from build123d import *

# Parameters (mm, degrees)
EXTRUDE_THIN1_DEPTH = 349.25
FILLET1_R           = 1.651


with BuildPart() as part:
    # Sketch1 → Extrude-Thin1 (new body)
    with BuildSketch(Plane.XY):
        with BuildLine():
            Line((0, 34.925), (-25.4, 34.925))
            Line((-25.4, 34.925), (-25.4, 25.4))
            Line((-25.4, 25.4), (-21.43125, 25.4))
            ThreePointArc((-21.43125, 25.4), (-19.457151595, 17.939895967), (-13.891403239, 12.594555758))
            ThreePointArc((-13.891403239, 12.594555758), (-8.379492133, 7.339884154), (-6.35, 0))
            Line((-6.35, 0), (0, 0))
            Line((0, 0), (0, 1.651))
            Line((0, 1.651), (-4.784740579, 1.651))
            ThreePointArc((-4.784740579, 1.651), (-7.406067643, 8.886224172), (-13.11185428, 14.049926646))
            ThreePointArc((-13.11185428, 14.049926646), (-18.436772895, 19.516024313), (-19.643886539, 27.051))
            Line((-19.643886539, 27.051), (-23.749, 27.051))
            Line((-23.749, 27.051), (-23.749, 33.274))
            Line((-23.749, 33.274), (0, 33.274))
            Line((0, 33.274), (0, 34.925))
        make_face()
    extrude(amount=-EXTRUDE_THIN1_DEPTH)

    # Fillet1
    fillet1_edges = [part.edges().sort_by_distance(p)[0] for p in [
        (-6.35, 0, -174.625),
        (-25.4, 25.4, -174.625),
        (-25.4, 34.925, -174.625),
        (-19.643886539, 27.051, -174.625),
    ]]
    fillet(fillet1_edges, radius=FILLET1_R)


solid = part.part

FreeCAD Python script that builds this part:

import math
import FreeCAD as App
import Part
import Sketcher
Q = App.Units.Quantity


def edges_at(feature, points):
    """Names of the edges that pass closest to the given points."""
    edges = feature.Shape.Edges
    near = lambda p: min(range(len(edges)), key=lambda i: edges[i].distToShape(Part.Vertex(*p))[0])
    return sorted({f"Edge{near(p) + 1}" for p in points})

doc = App.newDocument("Part")
body = doc.addObject("PartDesign::Body", "Body")

sketch1 = body.newObject("Sketcher::SketchObject", "Sketch")
sketch1.AttachmentSupport = (doc.getObject("XY_Plane"), [""])
sketch1.MapMode = "FlatFace"
sketch1.addGeometry([
    Part.LineSegment(App.Vector(0, 34.9, 0), App.Vector(-25.4, 34.9, 0)),
    Part.LineSegment(App.Vector(-25.4, 34.9, 0), App.Vector(-25.4, 25.4, 0)),
    Part.LineSegment(App.Vector(-25.4, 25.4, 0), App.Vector(-21.4, 25.4, 0)),
    Part.ArcOfCircle(Part.Circle(App.Vector(-7.1, 25.2, 0), App.Vector(0, 0, 1), 14.3), math.radians(179), math.radians(242)),
    Part.ArcOfCircle(Part.Circle(App.Vector(-20.6, 0, 0), App.Vector(0, 0, 1), 14.3), math.radians(0), math.radians(62)),
    Part.LineSegment(App.Vector(-6.3, 0, 0), App.Vector(0, 0, 0)),
    Part.LineSegment(App.Vector(0, 0, 0), App.Vector(0, 1.7, 0)),
    Part.LineSegment(App.Vector(0, 1.7, 0), App.Vector(-4.8, 1.7, 0)),
    Part.ArcOfCircle(Part.Circle(App.Vector(-20.6, 0, 0), App.Vector(0, 0, 1), 15.9), math.radians(6), math.radians(62)),
    Part.ArcOfCircle(Part.Circle(App.Vector(-7.1, 25.2, 0), App.Vector(0, 0, 1), 12.6), math.radians(172), math.radians(242)),
    Part.LineSegment(App.Vector(-19.6, 27.1, 0), App.Vector(-23.7, 27.1, 0)),
    Part.LineSegment(App.Vector(-23.7, 27.1, 0), App.Vector(-23.7, 33.3, 0)),
    Part.LineSegment(App.Vector(-23.7, 33.3, 0), App.Vector(0, 33.3, 0)),
    Part.LineSegment(App.Vector(0, 33.3, 0), App.Vector(0, 34.9, 0)),
], False)
sketch1.addConstraint([
    Sketcher.Constraint("Coincident", 0, 2, 1, 1),
    Sketcher.Constraint("Coincident", 1, 2, 2, 1),
    Sketcher.Constraint("Coincident", 2, 2, 3, 1),
    Sketcher.Constraint("Tangent", 3, 2, 4, 2),
    Sketcher.Constraint("Coincident", 4, 1, 5, 1),
    Sketcher.Constraint("Coincident", 5, 2, 6, 1),
    Sketcher.Constraint("Coincident", 6, 2, 7, 1),
    Sketcher.Constraint("Coincident", 7, 2, 8, 1),
    Sketcher.Constraint("Tangent", 8, 2, 9, 2),
    Sketcher.Constraint("Coincident", 9, 1, 10, 1),
    Sketcher.Constraint("Coincident", 10, 2, 11, 1),
    Sketcher.Constraint("Coincident", 11, 2, 12, 1),
    Sketcher.Constraint("Coincident", 12, 2, 13, 1),
    Sketcher.Constraint("Coincident", 13, 2, 0, 1),
    Sketcher.Constraint("Horizontal", 0),
    Sketcher.Constraint("Vertical", 1),
    Sketcher.Constraint("Horizontal", 2),
    Sketcher.Constraint("Horizontal", 5),
    Sketcher.Constraint("Vertical", 6),
    Sketcher.Constraint("Horizontal", 7),
    Sketcher.Constraint("Horizontal", 10),
    Sketcher.Constraint("Vertical", 11),
    Sketcher.Constraint("Horizontal", 12),
    Sketcher.Constraint("Vertical", 13),
    Sketcher.Constraint("Coincident", 5, 2, -1, 1),
    Sketcher.Constraint("Coincident", 8, 3, 4, 3),
    Sketcher.Constraint("Coincident", 9, 3, 3, 3),
    Sketcher.Constraint("Equal", 3, 4),
    Sketcher.Constraint("PointOnObject", 4, 3, -1),
    Sketcher.Constraint("PointOnObject", 12, 2, -2),
    Sketcher.Constraint("Equal", 6, 13),
    Sketcher.Constraint("DistanceX", 0, 2, 0, 1, Q("1 in")),
    Sketcher.Constraint("DistanceY", -1, 1, 1, 2, Q("1 in")),
    Sketcher.Constraint("Radius", 3, Q("0.5625 in")),
    Sketcher.Constraint("DistanceX", 5, 1, 5, 2, Q("0.25 in")),
    Sketcher.Constraint("Radius", 8, Q("0.6275 in")),
    Sketcher.Constraint("DistanceX", 2, 1, 2, 2, Q("0.15625 in")),
    Sketcher.Constraint("DistanceX", 12, 1, 12, 2, Q("0.935 in")),
    Sketcher.Constraint("DistanceY", 1, 2, 1, 1, Q("0.375 in")),
    Sketcher.Constraint("DistanceY", 6, 1, 6, 2, Q("0.065 in")),
    Sketcher.Constraint("DistanceY", 11, 1, 11, 2, Q("0.245 in")),
])
pad1 = body.newObject("PartDesign::Pad", "Pad")
pad1.Profile = sketch1
pad1.Length = Q("13.75 in")
pad1.Reversed = True
doc.recompute()

fillet = body.newObject("PartDesign::Fillet", "Fillet")
fillet.Base = (pad1, edges_at(pad1, [
    (-6.35, 0, -174.625),
    (-25.4, 25.4, -174.625),
    (-25.4, 34.925, -174.625),
    (-19.644, 27.051, -174.625),
]))
fillet.Radius = Q("0.065 in")

doc.recompute()
